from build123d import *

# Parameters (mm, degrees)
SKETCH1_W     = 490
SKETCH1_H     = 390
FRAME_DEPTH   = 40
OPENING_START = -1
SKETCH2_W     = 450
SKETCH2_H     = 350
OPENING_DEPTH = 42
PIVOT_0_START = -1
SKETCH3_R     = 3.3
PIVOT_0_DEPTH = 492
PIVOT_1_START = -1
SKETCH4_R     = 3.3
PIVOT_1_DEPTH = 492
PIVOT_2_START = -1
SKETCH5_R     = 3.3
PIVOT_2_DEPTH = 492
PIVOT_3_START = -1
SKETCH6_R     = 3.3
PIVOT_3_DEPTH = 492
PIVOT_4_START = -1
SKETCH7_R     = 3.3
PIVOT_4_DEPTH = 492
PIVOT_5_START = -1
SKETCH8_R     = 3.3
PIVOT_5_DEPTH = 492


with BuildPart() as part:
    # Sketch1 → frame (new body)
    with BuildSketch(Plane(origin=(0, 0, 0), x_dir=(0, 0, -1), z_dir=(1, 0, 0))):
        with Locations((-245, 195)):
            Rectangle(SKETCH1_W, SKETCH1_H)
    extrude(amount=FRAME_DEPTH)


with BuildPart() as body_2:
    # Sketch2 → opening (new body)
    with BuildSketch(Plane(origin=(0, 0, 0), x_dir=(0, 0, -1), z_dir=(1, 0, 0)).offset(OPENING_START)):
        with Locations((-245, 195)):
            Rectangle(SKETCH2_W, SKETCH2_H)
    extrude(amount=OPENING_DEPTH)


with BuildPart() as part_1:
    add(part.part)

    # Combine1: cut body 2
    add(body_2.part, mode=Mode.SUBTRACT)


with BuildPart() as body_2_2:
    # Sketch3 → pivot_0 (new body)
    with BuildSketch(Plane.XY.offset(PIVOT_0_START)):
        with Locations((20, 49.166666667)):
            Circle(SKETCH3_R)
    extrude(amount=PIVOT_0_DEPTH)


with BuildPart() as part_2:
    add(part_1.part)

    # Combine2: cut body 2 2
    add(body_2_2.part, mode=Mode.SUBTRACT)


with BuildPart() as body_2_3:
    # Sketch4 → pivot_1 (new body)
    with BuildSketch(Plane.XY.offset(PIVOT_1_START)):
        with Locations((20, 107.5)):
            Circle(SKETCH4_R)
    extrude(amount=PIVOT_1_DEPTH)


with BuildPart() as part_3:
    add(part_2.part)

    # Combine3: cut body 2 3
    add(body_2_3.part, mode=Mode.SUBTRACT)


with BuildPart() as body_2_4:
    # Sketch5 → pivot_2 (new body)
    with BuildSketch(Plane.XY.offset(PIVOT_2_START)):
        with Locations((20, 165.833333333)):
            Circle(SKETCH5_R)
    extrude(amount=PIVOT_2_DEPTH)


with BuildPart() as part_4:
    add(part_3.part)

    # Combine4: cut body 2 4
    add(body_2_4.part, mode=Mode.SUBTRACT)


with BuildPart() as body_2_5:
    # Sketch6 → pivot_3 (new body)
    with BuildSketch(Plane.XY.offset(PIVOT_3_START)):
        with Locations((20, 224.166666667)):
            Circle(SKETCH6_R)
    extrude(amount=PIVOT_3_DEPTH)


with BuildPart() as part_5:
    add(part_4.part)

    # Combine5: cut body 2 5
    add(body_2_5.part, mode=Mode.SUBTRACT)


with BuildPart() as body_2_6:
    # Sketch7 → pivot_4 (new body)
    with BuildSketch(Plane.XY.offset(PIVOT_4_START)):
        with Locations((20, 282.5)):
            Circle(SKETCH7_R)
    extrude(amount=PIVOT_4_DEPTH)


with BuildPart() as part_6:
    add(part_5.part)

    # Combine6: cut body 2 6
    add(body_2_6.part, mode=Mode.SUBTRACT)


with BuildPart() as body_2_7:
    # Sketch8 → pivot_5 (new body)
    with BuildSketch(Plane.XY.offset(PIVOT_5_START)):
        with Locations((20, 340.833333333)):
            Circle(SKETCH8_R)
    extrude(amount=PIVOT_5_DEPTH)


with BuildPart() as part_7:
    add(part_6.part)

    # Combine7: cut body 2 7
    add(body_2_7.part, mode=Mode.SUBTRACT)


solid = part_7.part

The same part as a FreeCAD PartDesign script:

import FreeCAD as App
import Part
import Sketcher
from FreeCAD import Vector

doc = App.newDocument("Part")
body = doc.addObject("PartDesign::Body", "Body")

# Sketch on YZ plane
sketch1 = doc.addObject("Sketcher::SketchObject", "Sketch")
body.addObject(sketch1)
sketch1.AttachmentSupport = (doc.YZ_Plane, [""])
sketch1.MapMode = "FlatFace"
sketch1.addGeometry([
    Part.LineSegment(Vector(390, 490, 0), Vector(0, 490, 0)),
    Part.LineSegment(Vector(0, 490, 0), Vector(0, 0, 0)),
    Part.LineSegment(Vector(0, 0, 0), Vector(390, 0, 0)),
    Part.LineSegment(Vector(390, 0, 0), Vector(390, 490, 0)),
], False)
sketch1.addConstraint([
    Sketcher.Constraint("Coincident", 0, 2, 1, 1),
    Sketcher.Constraint("Coincident", 1, 2, 2, 1),
    Sketcher.Constraint("Coincident", 2, 2, 3, 1),
    Sketcher.Constraint("Coincident", 3, 2, 0, 1),
    Sketcher.Constraint("Horizontal", 0),
    Sketcher.Constraint("Vertical", 1),
    Sketcher.Constraint("Horizontal", 2),
    Sketcher.Constraint("Vertical", 3),
    Sketcher.Constraint("Coincident", 1, 2, -1, 1),
    Sketcher.Constraint("DistanceX", 0, 2, 0, 1, 390.0),
    Sketcher.Constraint("DistanceY", 1, 2, 1, 1, 490.0),
])
pad1 = doc.addObject("PartDesign::Pad", "Pad")
body.addObject(pad1)
pad1.Profile = sketch1
pad1.Length = 40
body2 = doc.addObject("PartDesign::Body", "Body001")

# Sketch on YZ plane
sketch2 = doc.addObject("Sketcher::SketchObject", "Sketch001")
body2.addObject(sketch2)
sketch2.AttachmentSupport = (doc.getObject("YZ_Plane001"), [""])
sketch2.MapMode = "FlatFace"
sketch2.AttachmentOffset = App.Placement(Vector(0, 0, -1), App.Rotation())
sketch2.addGeometry([
    Part.LineSegment(Vector(370, 470, 0), Vector(20, 470, 0)),
    Part.LineSegment(Vector(20, 470, 0), Vector(20, 20, 0)),
    Part.LineSegment(Vector(20, 20, 0), Vector(370, 20, 0)),
    Part.LineSegment(Vector(370, 20, 0), Vector(370, 470, 0)),
], False)
sketch2.addConstraint([
    Sketcher.Constraint("Coincident", 0, 2, 1, 1),
    Sketcher.Constraint("Coincident", 1, 2, 2, 1),
    Sketcher.Constraint("Coincident", 2, 2, 3, 1),
    Sketcher.Constraint("Coincident", 3, 2, 0, 1),
    Sketcher.Constraint("Horizontal", 0),
    Sketcher.Constraint("Vertical", 1),
    Sketcher.Constraint("Horizontal", 2),
    Sketcher.Constraint("Vertical", 3),
    Sketcher.Constraint("DistanceX", 0, 2, 0, 1, 350.0),
    Sketcher.Constraint("DistanceY", 1, 2, 1, 1, 450.0),
    Sketcher.Constraint("DistanceX", -1, 1, 0, 2, 20.0),
    Sketcher.Constraint("DistanceY", -1, 1, 0, 2, 470.0),
])
pad2 = doc.addObject("PartDesign::Pad", "Pad001")
body2.addObject(pad2)
pad2.Profile = sketch2
pad2.Length = 42
doc.recompute()

boolean = doc.addObject("PartDesign::Boolean", "Boolean")
body.addObject(boolean)
boolean.Type = "Cut"
boolean.addObjects([body2])
body3 = doc.addObject("PartDesign::Body", "Body002")

# Sketch on XY plane
sketch3 = doc.addObject("Sketcher::SketchObject", "Sketch002")
body3.addObject(sketch3)
sketch3.AttachmentSupport = (doc.getObject("XY_Plane002"), [""])
sketch3.MapMode = "FlatFace"
sketch3.AttachmentOffset = App.Placement(Vector(0, 0, -1), App.Rotation())
sketch3.addGeometry(Part.Circle(Vector(20, 49.166667, 0), Vector(0, 0, 1), 3.3), False)
sketch3.addConstraint([
    Sketcher.Constraint("Diameter", 0, 6.6),
    Sketcher.Constraint("DistanceX", -1, 1, 0, 3, 20.0),
    Sketcher.Constraint("DistanceY", -1, 1, 0, 3, 49.166667),
])
pad3 = doc.addObject("PartDesign::Pad", "Pad002")
body3.addObject(pad3)
pad3.Profile = sketch3
pad3.Length = 492
doc.recompute()

boolean2 = doc.addObject("PartDesign::Boolean", "Boolean001")
body.addObject(boolean2)
boolean2.Type = "Cut"
boolean2.addObjects([body3])
body4 = doc.addObject("PartDesign::Body", "Body003")

# Sketch on XY plane
sketch4 = doc.addObject("Sketcher::SketchObject", "Sketch003")
body4.addObject(sketch4)
sketch4.AttachmentSupport = (doc.getObject("XY_Plane003"), [""])
sketch4.MapMode = "FlatFace"
sketch4.AttachmentOffset = App.Placement(Vector(0, 0, -1), App.Rotation())
sketch4.addGeometry(Part.Circle(Vector(20, 107.5, 0), Vector(0, 0, 1), 3.3), False)
sketch4.addConstraint([
    Sketcher.Constraint("Diameter", 0, 6.6),
    Sketcher.Constraint("DistanceX", -1, 1, 0, 3, 20.0),
    Sketcher.Constraint("DistanceY", -1, 1, 0, 3, 107.5),
])
pad4 = doc.addObject("PartDesign::Pad", "Pad003")
body4.addObject(pad4)
pad4.Profile = sketch4
pad4.Length = 492
doc.recompute()

boolean3 = doc.addObject("PartDesign::Boolean", "Boolean002")
body.addObject(boolean3)
boolean3.Type = "Cut"
boolean3.addObjects([body4])
body5 = doc.addObject("PartDesign::Body", "Body004")

# Sketch on XY plane
sketch5 = doc.addObject("Sketcher::SketchObject", "Sketch004")
body5.addObject(sketch5)
sketch5.AttachmentSupport = (doc.getObject("XY_Plane004"), [""])
sketch5.MapMode = "FlatFace"
sketch5.AttachmentOffset = App.Placement(Vector(0, 0, -1), App.Rotation())
sketch5.addGeometry(Part.Circle(Vector(20, 165.833333, 0), Vector(0, 0, 1), 3.3), False)
sketch5.addConstraint([
    Sketcher.Constraint("Diameter", 0, 6.6),
    Sketcher.Constraint("DistanceX", -1, 1, 0, 3, 20.0),
    Sketcher.Constraint("DistanceY", -1, 1, 0, 3, 165.833333),
])
pad5 = doc.addObject("PartDesign::Pad", "Pad004")
body5.addObject(pad5)
pad5.Profile = sketch5
pad5.Length = 492
doc.recompute()

boolean4 = doc.addObject("PartDesign::Boolean", "Boolean003")
body.addObject(boolean4)
boolean4.Type = "Cut"
boolean4.addObjects([body5])
body6 = doc.addObject("PartDesign::Body", "Body005")

# Sketch on XY plane
sketch6 = doc.addObject("Sketcher::SketchObject", "Sketch005")
body6.addObject(sketch6)
sketch6.AttachmentSupport = (doc.getObject("XY_Plane005"), [""])
sketch6.MapMode = "FlatFace"
sketch6.AttachmentOffset = App.Placement(Vector(0, 0, -1), App.Rotation())
sketch6.addGeometry(Part.Circle(Vector(20, 224.166667, 0), Vector(0, 0, 1), 3.3), False)
sketch6.addConstraint([
    Sketcher.Constraint("Diameter", 0, 6.6),
    Sketcher.Constraint("DistanceX", -1, 1, 0, 3, 20.0),
    Sketcher.Constraint("DistanceY", -1, 1, 0, 3, 224.166667),
])
pad6 = doc.addObject("PartDesign::Pad", "Pad005")
body6.addObject(pad6)
pad6.Profile = sketch6
pad6.Length = 492
doc.recompute()

boolean5 = doc.addObject("PartDesign::Boolean", "Boolean004")
body.addObject(boolean5)
boolean5.Type = "Cut"
boolean5.addObjects([body6])
body7 = doc.addObject("PartDesign::Body", "Body006")

# Sketch on XY plane
sketch7 = doc.addObject("Sketcher::SketchObject", "Sketch006")
body7.addObject(sketch7)
sketch7.AttachmentSupport = (doc.getObject("XY_Plane006"), [""])
sketch7.MapMode = "FlatFace"
sketch7.AttachmentOffset = App.Placement(Vector(0, 0, -1), App.Rotation())
sketch7.addGeometry(Part.Circle(Vector(20, 282.5, 0), Vector(0, 0, 1), 3.3), False)
sketch7.addConstraint([
    Sketcher.Constraint("Diameter", 0, 6.6),
    Sketcher.Constraint("DistanceX", -1, 1, 0, 3, 20.0),
    Sketcher.Constraint("DistanceY", -1, 1, 0, 3, 282.5),
])
pad7 = doc.addObject("PartDesign::Pad", "Pad006")
body7.addObject(pad7)
pad7.Profile = sketch7
pad7.Length = 492
doc.recompute()

boolean6 = doc.addObject("PartDesign::Boolean", "Boolean005")
body.addObject(boolean6)
boolean6.Type = "Cut"
boolean6.addObjects([body7])
body8 = doc.addObject("PartDesign::Body", "Body007")

# Sketch on XY plane
sketch8 = doc.addObject("Sketcher::SketchObject", "Sketch007")
body8.addObject(sketch8)
sketch8.AttachmentSupport = (doc.getObject("XY_Plane007"), [""])
sketch8.MapMode = "FlatFace"
sketch8.AttachmentOffset = App.Placement(Vector(0, 0, -1), App.Rotation())
sketch8.addGeometry(Part.Circle(Vector(20, 340.833333, 0), Vector(0, 0, 1), 3.3), False)
sketch8.addConstraint([
    Sketcher.Constraint("Diameter", 0, 6.6),
    Sketcher.Constraint("DistanceX", -1, 1, 0, 3, 20.0),
    Sketcher.Constraint("DistanceY", -1, 1, 0, 3, 340.833333),
])
pad8 = doc.addObject("PartDesign::Pad", "Pad007")
body8.addObject(pad8)
pad8.Profile = sketch8
pad8.Length = 492
doc.recompute()

boolean7 = doc.addObject("PartDesign::Boolean", "Boolean006")
body.addObject(boolean7)
boolean7.Type = "Cut"
boolean7.addObjects([body8])

doc.recompute()
